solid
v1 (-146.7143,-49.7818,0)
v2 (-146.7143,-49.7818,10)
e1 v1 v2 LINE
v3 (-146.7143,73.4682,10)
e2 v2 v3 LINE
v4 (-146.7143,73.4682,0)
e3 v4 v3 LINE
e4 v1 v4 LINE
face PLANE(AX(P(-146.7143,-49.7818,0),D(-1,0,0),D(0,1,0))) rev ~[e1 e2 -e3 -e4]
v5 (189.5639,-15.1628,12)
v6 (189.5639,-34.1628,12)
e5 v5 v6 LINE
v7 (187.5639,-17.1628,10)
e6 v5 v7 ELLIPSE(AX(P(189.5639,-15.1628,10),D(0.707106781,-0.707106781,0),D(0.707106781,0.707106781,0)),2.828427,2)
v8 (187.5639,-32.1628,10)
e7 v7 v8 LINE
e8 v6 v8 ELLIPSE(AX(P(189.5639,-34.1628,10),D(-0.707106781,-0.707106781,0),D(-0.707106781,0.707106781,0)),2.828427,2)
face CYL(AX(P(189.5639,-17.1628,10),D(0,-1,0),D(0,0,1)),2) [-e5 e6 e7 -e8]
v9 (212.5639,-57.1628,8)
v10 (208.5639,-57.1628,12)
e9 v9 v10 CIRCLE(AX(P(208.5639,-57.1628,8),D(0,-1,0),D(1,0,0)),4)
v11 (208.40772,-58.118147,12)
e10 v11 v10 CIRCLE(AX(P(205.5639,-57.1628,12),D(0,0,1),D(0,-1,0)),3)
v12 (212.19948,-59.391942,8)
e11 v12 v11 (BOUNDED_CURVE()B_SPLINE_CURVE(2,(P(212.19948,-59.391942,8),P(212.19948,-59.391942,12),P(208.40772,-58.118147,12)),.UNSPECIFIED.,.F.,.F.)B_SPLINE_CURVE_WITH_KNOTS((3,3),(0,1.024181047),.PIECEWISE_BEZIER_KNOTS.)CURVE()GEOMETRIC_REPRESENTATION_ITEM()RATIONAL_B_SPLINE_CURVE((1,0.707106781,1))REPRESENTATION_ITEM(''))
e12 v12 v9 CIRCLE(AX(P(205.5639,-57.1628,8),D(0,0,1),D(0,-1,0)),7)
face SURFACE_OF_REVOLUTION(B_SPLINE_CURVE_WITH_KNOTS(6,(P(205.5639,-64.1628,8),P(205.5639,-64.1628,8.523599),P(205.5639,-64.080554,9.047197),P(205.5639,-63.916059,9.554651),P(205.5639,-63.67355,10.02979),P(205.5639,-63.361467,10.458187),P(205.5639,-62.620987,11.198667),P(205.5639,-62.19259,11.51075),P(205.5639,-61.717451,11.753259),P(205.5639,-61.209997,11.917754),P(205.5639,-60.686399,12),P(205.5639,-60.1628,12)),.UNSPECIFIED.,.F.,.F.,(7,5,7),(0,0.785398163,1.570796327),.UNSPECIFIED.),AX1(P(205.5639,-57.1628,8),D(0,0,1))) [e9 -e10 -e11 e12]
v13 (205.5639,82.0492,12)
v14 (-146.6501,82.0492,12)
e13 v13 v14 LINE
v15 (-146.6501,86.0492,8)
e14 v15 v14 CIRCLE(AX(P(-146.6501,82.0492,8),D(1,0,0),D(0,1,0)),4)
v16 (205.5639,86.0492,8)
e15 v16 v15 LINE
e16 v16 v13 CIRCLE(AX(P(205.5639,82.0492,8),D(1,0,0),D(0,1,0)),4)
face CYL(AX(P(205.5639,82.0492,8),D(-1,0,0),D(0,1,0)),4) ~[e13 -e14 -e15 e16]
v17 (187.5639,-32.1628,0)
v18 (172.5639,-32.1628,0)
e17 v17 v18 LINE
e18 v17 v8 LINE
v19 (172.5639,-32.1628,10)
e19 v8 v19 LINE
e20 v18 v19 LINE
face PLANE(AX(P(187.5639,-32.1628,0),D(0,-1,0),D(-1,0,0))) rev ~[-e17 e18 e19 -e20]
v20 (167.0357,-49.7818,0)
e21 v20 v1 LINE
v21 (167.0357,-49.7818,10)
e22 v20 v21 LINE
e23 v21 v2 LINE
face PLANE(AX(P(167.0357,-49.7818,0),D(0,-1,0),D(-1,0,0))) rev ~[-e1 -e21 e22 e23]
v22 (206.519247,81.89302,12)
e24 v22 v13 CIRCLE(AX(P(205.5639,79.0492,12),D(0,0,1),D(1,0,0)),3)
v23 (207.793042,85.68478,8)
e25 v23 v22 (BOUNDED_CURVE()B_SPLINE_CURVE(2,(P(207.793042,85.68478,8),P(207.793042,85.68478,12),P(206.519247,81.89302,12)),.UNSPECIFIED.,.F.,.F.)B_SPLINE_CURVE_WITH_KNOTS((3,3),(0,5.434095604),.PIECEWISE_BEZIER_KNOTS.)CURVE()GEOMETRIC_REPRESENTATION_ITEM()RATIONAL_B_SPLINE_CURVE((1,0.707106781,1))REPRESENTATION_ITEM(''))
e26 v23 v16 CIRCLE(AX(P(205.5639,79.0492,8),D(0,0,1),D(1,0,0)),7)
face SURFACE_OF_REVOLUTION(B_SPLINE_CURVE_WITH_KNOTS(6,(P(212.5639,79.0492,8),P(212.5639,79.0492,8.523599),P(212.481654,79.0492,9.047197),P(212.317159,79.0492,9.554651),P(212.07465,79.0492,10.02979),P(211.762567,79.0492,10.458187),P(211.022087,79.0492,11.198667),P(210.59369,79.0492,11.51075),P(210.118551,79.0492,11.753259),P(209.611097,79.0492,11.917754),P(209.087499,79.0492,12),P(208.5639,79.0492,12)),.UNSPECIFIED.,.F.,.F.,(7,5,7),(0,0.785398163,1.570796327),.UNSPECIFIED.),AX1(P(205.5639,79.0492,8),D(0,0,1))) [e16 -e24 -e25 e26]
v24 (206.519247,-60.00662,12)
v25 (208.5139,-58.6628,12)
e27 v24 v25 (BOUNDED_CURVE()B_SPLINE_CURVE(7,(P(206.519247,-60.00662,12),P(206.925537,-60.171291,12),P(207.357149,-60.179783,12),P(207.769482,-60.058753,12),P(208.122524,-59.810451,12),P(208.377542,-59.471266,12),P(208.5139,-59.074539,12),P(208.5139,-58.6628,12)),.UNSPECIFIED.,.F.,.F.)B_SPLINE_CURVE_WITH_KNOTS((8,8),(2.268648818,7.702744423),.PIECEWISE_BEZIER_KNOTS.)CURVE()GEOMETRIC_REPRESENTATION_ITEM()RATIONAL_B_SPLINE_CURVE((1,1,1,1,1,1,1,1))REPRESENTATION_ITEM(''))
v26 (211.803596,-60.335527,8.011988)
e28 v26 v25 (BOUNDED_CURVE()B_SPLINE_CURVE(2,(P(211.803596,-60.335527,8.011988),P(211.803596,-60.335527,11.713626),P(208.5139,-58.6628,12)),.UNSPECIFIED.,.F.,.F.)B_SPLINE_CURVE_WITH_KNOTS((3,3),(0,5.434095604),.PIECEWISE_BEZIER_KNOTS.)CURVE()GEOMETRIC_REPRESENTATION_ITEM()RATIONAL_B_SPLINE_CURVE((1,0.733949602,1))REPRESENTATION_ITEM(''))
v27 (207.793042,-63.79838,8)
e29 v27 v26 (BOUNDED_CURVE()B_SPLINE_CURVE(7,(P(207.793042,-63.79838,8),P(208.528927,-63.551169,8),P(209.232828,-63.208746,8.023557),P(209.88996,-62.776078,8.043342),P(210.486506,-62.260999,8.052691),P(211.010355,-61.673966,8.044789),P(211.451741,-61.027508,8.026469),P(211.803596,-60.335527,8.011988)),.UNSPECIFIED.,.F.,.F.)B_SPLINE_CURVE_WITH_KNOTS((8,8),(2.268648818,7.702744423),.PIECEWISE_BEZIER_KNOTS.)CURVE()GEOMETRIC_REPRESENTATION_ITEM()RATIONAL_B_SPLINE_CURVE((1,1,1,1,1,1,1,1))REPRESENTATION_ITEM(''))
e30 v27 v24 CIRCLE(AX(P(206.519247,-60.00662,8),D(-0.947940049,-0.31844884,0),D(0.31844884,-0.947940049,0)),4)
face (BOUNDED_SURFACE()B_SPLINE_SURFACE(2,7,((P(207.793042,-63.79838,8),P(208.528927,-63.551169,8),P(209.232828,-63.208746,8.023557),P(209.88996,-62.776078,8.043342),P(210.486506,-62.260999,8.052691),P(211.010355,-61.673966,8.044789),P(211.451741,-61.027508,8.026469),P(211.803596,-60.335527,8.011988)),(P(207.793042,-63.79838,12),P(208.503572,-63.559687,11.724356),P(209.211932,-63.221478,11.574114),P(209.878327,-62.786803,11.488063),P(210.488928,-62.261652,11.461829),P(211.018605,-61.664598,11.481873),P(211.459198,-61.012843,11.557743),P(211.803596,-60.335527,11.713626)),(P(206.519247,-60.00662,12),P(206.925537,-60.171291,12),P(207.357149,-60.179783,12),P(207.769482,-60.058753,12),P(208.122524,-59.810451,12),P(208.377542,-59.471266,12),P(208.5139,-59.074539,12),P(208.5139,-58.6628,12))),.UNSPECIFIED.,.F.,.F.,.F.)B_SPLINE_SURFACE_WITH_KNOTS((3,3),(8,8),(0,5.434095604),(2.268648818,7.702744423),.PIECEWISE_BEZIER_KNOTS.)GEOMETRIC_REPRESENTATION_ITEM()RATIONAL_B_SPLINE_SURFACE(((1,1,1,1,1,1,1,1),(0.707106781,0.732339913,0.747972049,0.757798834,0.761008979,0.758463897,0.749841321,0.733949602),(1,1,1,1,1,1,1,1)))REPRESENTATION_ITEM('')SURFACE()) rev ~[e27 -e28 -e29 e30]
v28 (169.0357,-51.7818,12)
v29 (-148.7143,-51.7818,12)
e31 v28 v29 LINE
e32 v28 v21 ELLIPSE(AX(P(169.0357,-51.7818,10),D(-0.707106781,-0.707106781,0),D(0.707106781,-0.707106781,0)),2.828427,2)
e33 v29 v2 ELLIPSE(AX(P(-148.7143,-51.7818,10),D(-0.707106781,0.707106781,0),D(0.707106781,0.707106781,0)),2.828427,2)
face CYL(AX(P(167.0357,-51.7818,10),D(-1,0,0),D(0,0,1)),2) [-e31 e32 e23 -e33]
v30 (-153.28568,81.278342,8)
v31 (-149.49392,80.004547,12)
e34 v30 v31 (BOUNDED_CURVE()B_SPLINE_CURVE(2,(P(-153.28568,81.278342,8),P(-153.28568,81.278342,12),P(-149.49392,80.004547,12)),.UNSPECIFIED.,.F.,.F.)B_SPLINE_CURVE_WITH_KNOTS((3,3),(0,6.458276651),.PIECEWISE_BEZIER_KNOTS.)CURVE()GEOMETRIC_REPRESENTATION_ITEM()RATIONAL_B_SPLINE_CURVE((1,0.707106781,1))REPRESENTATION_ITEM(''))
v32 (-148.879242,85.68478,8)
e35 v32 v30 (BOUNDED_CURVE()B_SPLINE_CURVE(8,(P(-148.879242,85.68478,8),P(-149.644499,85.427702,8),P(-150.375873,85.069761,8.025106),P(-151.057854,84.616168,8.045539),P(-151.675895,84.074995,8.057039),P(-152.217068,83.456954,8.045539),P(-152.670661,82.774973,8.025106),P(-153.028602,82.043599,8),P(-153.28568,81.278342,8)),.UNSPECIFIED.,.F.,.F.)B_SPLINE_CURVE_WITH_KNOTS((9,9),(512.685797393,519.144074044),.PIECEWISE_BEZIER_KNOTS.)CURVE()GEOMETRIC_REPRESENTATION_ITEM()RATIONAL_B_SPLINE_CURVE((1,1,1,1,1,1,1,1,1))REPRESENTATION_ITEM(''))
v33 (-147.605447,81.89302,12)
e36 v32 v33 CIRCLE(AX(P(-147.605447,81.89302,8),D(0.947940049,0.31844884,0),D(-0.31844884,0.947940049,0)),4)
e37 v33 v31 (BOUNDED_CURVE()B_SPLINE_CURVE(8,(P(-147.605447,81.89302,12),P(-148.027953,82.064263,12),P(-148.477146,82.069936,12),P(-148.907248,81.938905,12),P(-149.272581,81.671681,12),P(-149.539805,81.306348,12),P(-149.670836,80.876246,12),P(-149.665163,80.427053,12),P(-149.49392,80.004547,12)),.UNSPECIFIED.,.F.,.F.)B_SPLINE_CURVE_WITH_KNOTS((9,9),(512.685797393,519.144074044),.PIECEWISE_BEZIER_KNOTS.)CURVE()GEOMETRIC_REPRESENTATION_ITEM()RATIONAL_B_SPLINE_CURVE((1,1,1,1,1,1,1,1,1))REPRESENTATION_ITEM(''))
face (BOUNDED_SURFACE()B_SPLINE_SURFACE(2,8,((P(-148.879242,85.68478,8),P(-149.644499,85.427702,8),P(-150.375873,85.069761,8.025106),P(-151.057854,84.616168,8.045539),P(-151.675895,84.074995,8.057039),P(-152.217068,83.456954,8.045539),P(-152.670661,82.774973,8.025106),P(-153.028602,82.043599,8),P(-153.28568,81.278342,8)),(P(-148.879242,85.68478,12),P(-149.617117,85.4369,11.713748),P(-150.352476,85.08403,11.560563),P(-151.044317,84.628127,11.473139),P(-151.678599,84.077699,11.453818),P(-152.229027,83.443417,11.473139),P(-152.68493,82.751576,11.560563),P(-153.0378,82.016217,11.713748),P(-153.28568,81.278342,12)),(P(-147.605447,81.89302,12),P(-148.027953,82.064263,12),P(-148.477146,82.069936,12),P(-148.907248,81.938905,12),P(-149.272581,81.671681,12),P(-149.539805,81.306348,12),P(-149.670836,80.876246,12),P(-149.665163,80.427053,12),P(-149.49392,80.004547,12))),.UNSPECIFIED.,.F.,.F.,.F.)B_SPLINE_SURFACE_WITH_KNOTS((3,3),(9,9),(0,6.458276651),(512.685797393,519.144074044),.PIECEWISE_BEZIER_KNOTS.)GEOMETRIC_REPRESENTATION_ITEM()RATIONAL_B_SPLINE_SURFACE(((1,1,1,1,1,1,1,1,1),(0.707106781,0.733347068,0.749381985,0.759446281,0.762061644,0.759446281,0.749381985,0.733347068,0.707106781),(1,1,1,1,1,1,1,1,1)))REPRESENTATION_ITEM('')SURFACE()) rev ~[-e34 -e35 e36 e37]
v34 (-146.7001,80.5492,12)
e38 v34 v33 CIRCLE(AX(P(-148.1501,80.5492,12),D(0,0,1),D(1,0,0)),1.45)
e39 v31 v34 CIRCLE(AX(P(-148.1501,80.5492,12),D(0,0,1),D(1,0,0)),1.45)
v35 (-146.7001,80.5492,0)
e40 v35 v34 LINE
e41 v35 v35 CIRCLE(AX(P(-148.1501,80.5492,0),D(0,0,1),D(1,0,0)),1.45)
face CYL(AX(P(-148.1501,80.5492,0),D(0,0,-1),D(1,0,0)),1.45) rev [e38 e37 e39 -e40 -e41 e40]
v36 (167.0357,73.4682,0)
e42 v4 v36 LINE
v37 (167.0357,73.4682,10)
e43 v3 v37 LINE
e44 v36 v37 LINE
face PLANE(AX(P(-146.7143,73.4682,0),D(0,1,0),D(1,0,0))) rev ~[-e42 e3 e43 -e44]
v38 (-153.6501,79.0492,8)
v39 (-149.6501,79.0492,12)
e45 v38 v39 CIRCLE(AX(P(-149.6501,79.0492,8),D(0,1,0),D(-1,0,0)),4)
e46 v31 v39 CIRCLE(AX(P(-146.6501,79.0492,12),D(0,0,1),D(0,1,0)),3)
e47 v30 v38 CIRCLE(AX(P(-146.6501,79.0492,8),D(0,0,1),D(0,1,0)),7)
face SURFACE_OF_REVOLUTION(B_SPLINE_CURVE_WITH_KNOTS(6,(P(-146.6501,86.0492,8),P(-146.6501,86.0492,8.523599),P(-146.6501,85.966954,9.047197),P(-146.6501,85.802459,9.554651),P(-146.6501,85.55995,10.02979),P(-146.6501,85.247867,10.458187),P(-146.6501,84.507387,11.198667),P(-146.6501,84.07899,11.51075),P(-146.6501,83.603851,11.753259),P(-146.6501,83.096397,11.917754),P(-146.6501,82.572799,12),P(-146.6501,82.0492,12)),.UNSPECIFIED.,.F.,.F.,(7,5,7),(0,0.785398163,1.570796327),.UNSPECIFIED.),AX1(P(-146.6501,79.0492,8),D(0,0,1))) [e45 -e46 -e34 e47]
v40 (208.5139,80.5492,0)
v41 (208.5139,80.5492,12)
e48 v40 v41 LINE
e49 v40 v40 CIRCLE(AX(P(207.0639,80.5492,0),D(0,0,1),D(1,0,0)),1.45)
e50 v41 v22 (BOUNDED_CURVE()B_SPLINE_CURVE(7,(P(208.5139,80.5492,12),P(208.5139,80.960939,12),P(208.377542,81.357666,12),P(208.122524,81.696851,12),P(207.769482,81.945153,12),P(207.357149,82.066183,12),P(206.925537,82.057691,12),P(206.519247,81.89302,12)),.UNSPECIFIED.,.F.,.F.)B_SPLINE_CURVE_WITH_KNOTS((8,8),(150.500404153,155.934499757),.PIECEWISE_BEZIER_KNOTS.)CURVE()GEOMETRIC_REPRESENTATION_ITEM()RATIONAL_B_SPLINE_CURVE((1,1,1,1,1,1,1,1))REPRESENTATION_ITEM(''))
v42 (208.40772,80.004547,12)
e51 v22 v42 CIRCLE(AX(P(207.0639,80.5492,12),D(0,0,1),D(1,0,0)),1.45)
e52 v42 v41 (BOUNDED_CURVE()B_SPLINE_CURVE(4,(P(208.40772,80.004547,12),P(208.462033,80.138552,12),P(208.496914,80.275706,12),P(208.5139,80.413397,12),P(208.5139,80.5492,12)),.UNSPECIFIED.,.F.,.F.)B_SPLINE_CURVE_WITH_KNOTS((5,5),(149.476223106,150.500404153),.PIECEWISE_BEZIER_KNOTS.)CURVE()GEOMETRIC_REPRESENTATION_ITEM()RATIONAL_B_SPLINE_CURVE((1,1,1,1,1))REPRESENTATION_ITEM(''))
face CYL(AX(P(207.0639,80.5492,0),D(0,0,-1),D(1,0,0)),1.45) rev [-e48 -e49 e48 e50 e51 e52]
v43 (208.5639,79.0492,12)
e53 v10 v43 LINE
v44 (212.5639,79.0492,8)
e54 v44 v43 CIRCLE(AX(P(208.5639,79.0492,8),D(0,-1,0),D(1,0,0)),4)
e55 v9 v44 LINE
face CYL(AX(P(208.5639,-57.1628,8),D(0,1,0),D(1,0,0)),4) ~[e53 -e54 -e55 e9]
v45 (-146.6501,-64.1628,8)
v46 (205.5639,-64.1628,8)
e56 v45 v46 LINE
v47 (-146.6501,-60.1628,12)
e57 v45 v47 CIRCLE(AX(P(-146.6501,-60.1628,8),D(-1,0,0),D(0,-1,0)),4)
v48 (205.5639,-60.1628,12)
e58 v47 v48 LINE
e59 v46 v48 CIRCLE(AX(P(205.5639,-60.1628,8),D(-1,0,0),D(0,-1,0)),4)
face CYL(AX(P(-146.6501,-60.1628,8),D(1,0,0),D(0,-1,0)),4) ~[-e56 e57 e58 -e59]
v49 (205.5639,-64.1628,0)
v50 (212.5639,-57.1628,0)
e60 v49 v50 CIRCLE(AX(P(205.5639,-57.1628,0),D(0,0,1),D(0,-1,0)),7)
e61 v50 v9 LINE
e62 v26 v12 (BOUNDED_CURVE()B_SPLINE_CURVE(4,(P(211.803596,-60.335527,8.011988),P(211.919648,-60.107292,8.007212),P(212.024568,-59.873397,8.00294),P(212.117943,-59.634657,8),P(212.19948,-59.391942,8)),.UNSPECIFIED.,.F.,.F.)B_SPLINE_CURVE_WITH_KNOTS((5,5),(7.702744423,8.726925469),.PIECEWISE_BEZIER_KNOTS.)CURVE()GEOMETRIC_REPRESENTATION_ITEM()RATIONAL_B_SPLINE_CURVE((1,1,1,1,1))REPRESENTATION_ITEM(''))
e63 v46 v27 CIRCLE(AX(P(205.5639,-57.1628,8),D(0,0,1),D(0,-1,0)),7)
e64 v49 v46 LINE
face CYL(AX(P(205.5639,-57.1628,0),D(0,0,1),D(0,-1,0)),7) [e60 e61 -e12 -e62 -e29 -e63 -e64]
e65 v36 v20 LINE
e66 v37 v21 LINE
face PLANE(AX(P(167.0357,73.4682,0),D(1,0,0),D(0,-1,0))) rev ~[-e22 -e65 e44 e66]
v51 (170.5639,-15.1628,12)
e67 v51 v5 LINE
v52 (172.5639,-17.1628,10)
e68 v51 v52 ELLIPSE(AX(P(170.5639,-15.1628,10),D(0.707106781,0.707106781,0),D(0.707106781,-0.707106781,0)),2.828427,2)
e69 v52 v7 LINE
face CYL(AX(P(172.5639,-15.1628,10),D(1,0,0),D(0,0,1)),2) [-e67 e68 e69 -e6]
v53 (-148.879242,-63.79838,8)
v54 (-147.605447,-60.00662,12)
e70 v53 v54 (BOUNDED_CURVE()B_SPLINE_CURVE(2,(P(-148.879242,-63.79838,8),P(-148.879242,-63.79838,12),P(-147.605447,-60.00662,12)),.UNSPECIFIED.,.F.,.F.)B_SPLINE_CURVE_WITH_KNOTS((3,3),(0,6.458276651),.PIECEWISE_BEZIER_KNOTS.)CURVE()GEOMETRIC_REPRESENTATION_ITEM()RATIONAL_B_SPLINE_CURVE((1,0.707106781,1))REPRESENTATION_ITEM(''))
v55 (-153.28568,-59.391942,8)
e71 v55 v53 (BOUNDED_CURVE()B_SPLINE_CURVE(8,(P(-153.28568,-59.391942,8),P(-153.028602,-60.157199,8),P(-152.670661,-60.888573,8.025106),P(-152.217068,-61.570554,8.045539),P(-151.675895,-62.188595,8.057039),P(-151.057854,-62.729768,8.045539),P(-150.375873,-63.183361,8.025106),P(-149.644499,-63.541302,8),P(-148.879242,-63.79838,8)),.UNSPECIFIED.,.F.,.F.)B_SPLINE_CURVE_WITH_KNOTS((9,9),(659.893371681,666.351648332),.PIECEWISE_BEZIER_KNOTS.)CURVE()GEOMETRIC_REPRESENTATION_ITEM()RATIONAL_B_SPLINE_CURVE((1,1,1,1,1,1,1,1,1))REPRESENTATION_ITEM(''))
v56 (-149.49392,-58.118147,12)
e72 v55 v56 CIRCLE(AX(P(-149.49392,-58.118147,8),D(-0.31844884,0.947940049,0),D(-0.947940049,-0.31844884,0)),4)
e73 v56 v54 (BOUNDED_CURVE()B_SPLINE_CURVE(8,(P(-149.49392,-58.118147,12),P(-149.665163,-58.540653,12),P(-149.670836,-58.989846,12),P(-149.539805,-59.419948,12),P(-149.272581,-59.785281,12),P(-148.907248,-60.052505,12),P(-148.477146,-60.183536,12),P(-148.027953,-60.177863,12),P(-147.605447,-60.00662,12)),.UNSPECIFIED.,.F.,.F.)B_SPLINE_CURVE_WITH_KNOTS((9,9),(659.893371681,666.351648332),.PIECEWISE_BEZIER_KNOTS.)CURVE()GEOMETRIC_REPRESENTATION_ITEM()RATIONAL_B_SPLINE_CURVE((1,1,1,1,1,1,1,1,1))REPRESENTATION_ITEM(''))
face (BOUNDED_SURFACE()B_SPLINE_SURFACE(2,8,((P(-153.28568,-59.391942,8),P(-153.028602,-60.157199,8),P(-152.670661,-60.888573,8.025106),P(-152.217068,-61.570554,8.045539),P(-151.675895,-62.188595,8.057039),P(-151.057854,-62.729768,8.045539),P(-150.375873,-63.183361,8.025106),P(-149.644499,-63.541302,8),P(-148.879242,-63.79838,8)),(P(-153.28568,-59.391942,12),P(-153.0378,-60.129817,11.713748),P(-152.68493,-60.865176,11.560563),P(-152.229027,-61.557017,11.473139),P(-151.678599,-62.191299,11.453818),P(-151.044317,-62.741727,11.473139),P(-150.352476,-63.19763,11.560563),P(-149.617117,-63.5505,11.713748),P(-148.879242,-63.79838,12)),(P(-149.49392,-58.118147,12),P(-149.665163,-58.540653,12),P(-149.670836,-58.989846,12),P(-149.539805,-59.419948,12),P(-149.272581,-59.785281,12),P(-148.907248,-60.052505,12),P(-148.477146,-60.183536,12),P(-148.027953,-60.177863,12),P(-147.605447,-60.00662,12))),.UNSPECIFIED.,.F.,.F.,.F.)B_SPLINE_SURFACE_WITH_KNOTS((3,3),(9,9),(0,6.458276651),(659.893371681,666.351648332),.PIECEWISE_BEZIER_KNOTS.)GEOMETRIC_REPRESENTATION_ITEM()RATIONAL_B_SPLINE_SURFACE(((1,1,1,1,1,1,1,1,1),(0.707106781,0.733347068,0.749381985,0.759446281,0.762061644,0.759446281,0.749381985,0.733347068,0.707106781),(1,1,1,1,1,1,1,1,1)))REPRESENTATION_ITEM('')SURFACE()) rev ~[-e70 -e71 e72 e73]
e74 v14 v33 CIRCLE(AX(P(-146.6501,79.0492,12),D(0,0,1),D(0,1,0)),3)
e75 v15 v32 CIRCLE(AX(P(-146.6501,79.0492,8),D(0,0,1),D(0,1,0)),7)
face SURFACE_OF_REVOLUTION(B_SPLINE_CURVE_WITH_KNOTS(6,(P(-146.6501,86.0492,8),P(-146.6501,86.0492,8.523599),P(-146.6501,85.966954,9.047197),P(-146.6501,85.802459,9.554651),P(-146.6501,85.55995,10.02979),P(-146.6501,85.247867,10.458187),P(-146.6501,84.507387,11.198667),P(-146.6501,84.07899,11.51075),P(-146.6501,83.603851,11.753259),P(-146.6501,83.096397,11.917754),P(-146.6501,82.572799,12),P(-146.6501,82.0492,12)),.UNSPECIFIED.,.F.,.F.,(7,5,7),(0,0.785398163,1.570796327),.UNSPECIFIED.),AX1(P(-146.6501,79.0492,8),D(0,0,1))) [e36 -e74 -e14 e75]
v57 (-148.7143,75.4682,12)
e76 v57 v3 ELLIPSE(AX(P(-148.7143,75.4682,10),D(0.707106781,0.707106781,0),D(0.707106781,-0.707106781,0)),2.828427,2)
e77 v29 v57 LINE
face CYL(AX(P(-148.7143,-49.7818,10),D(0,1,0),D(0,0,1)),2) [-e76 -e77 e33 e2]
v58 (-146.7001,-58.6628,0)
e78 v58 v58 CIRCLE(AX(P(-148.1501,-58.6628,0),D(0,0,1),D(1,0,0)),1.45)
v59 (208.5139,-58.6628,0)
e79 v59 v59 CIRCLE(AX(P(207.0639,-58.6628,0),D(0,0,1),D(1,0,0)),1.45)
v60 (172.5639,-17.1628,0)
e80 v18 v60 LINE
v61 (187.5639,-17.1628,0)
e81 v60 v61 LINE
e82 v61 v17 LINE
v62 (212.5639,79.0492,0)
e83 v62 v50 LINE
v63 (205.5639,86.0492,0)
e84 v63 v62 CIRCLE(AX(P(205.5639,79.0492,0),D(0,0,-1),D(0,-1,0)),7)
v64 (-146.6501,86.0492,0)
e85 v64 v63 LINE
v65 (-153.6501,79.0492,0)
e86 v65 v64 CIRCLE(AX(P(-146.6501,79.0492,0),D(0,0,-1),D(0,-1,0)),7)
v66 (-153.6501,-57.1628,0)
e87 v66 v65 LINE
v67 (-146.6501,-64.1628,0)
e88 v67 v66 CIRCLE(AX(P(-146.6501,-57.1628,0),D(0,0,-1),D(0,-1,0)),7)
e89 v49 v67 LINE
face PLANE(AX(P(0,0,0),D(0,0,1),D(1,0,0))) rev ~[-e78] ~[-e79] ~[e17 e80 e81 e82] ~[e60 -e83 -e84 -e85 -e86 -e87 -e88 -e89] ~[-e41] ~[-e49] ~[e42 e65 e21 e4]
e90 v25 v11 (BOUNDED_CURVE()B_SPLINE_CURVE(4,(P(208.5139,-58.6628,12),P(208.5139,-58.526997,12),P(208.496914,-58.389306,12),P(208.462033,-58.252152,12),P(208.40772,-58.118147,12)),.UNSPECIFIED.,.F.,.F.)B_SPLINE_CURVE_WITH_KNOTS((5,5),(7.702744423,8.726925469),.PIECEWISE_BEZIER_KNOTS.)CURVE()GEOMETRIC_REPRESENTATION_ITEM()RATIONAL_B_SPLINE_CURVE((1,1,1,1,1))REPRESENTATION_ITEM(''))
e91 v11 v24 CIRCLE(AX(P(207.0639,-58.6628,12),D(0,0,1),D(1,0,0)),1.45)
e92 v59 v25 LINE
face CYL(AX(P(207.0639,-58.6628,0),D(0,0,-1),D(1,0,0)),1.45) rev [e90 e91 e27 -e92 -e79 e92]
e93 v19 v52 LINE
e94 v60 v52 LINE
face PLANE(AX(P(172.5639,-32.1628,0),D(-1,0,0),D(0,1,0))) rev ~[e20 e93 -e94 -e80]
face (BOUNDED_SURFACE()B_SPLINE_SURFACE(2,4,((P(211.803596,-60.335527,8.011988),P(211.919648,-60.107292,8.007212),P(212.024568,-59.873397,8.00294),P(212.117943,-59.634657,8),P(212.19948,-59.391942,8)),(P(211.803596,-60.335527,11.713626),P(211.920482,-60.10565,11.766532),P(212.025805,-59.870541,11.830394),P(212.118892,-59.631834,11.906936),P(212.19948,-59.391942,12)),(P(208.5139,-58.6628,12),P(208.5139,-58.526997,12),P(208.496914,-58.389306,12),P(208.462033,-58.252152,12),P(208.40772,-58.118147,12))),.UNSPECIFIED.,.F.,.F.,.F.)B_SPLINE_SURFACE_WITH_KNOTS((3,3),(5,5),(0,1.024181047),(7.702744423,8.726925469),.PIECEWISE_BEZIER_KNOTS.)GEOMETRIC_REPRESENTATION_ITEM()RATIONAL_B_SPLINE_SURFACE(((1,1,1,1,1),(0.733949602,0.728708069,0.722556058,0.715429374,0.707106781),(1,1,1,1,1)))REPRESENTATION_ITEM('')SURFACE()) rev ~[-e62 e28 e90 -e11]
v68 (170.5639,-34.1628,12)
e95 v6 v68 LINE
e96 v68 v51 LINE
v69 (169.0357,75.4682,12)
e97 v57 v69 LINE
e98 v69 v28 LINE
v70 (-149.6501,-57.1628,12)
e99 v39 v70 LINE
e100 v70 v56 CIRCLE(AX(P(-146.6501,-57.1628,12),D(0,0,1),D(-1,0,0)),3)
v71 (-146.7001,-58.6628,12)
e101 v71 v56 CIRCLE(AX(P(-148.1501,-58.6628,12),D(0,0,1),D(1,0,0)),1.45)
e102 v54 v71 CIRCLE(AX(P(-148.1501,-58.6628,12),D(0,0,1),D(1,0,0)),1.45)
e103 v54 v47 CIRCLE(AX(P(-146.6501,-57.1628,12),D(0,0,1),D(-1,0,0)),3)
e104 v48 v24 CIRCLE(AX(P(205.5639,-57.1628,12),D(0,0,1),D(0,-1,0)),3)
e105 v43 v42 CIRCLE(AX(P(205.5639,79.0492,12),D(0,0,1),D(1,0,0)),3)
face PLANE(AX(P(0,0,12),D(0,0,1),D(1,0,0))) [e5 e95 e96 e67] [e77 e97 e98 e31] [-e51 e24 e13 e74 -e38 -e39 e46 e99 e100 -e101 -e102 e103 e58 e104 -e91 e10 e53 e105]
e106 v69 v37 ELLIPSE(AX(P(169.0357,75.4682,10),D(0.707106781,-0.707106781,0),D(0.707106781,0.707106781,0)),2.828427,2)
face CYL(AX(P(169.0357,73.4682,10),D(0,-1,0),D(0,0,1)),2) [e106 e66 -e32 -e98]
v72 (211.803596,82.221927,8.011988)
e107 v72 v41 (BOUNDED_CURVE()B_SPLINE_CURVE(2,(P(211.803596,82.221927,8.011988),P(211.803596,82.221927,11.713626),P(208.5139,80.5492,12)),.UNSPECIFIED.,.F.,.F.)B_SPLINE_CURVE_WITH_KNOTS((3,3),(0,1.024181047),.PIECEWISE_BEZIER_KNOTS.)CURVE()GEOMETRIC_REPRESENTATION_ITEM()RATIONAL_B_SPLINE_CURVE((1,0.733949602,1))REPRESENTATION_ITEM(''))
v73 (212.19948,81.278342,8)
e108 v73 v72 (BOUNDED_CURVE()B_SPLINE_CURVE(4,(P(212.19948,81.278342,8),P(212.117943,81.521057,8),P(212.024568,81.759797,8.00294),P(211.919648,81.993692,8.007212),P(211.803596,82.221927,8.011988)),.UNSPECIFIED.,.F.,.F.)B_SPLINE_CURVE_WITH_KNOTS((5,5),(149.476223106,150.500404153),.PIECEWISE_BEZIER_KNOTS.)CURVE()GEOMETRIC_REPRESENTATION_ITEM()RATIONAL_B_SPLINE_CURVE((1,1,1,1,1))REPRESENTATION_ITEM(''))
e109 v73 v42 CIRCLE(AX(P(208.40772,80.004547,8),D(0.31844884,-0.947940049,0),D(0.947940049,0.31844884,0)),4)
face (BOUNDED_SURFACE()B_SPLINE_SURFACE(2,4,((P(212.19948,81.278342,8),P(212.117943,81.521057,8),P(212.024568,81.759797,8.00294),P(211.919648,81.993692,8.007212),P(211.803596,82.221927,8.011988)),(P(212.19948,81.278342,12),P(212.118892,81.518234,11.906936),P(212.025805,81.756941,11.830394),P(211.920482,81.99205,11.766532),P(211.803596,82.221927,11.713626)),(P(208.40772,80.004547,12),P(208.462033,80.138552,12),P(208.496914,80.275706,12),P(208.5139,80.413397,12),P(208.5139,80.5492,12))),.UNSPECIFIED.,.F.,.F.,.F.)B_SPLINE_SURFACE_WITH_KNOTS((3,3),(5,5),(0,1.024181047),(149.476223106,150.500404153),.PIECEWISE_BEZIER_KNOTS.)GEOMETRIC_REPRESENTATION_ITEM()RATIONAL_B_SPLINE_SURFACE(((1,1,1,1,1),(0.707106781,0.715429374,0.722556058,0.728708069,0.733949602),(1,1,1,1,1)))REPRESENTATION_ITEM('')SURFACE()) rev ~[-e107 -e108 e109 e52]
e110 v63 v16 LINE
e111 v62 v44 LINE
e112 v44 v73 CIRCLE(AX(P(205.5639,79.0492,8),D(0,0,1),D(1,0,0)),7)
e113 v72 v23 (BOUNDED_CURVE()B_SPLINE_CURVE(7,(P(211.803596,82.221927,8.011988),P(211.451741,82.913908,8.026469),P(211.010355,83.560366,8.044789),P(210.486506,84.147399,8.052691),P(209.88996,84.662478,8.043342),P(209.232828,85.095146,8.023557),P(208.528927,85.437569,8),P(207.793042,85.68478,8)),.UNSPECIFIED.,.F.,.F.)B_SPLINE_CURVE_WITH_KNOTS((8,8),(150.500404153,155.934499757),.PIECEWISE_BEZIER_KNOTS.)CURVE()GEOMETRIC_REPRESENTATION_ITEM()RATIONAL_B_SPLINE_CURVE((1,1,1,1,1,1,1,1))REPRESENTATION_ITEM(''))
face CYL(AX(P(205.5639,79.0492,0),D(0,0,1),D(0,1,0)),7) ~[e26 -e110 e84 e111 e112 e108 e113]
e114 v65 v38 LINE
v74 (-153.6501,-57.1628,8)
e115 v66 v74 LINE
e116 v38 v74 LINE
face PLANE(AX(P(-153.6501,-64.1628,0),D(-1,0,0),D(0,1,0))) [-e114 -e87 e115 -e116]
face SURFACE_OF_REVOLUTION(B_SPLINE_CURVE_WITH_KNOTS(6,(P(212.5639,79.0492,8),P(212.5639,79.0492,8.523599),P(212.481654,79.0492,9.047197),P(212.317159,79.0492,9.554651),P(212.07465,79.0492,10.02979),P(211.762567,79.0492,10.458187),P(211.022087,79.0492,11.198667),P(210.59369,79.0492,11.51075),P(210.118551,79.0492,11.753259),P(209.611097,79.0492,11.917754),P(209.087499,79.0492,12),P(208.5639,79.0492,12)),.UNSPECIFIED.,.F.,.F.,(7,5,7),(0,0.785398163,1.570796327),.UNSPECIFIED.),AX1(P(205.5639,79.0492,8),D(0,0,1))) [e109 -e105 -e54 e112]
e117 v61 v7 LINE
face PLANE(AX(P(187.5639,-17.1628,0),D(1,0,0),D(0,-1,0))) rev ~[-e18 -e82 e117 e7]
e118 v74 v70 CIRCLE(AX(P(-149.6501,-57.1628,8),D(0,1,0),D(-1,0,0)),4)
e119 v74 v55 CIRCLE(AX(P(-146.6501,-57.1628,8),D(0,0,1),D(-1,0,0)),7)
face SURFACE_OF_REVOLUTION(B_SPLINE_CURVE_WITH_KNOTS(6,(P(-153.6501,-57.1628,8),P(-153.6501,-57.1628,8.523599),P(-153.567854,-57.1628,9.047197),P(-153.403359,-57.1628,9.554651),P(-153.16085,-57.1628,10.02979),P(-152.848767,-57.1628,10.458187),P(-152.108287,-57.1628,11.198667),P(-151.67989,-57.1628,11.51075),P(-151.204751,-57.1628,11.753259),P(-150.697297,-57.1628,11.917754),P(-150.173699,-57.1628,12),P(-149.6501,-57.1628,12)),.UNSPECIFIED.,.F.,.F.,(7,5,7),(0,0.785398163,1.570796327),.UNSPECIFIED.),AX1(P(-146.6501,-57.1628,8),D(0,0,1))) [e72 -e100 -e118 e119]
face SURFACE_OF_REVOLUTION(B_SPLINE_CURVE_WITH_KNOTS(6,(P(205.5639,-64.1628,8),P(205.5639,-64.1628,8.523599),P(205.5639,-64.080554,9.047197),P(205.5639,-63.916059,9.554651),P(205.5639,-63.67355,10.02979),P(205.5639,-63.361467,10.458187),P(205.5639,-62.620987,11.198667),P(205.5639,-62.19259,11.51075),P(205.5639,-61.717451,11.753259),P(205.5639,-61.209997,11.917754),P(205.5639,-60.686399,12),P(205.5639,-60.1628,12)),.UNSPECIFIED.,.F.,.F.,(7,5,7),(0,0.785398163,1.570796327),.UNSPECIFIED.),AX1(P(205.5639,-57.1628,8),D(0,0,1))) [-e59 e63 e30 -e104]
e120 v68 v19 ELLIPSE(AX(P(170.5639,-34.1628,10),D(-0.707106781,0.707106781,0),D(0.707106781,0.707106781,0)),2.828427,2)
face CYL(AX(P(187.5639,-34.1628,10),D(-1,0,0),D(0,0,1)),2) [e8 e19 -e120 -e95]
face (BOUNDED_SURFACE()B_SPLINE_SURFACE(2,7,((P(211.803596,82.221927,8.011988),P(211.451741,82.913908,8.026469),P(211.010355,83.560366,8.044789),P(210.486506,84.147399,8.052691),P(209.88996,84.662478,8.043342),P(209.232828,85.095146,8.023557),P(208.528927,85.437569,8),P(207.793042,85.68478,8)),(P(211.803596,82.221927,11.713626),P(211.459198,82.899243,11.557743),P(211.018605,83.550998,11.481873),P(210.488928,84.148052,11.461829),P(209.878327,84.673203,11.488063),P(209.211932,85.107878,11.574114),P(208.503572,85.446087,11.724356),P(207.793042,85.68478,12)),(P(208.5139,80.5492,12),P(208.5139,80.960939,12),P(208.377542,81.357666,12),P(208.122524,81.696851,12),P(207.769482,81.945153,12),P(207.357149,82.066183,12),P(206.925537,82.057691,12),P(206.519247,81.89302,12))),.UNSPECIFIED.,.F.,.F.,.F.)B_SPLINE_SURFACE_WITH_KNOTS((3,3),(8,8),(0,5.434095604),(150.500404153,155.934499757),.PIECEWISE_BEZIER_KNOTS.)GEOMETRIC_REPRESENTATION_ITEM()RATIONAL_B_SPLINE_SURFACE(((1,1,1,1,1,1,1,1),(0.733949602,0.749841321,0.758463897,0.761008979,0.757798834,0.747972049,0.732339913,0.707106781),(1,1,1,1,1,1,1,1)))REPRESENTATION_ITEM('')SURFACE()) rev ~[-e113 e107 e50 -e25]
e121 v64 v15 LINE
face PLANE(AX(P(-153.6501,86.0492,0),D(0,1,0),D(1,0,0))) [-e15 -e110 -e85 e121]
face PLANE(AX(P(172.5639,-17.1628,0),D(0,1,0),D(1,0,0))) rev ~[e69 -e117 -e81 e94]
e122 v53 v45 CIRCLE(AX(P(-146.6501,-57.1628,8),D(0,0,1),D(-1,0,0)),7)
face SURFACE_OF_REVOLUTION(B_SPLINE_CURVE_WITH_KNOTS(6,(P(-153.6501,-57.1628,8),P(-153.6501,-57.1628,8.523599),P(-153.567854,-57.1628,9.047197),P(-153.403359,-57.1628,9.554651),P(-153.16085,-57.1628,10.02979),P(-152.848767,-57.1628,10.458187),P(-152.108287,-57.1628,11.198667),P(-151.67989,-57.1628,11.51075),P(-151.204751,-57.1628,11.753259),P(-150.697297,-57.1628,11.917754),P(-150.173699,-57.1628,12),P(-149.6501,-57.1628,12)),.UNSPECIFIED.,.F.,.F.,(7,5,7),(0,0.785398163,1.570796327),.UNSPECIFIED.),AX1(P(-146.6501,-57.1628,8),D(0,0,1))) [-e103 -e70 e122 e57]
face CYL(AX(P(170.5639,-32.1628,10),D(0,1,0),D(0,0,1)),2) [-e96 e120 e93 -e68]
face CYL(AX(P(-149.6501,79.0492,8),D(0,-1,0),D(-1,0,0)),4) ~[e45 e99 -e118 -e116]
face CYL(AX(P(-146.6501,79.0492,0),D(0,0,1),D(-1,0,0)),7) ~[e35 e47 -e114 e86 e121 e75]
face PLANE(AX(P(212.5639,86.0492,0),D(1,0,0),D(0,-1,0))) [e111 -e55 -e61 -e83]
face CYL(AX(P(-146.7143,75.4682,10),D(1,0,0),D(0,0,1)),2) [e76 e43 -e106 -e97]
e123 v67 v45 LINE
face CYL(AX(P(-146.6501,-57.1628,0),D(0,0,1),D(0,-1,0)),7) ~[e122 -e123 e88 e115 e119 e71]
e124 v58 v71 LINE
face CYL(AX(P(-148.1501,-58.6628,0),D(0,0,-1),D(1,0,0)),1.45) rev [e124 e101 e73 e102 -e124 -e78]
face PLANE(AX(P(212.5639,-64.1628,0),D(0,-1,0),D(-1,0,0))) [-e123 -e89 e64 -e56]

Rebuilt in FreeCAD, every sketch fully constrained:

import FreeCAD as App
import Part
import Sketcher
from FreeCAD import Vector


def edges_at(feature, points):
    """Names of the edges that pass closest to the given points."""
    edges = feature.Shape.Edges
    near = lambda p: min(range(len(edges)), key=lambda i: edges[i].distToShape(Part.Vertex(*p))[0])
    return sorted({f"Edge{near(p) + 1}" for p in points})

doc = App.newDocument("Part")
params = doc.addObject("Spreadsheet::Sheet", "Params")
for row, (alias, value) in enumerate([
    ("sketch1_diameter", "2.9 mm"),
    ("sketch1_width", "15 mm"),
    ("sketch1_width2", "313.75 mm"),
    ("sketch1_height", "123.25 mm"),
    ("pad1_length", "12 mm"),
    ("fillet_radius", "7 mm"),
    ("fillet2_radius", "4 mm"),
    ("fillet3_radius", "2 mm"),
    ("fillet4_radius", "2 mm"),
], start=1):
    params.set(f"A{row}", alias)
    params.set(f"B{row}", "=" + value)
    params.setAlias(f"B{row}", alias)

body = doc.addObject("PartDesign::Body", "Body")

# Sketch on XY plane
sketch1 = doc.addObject("Sketcher::SketchObject", "Sketch")
body.addObject(sketch1)
sketch1.AttachmentSupport = (doc.XY_Plane, [""])
sketch1.MapMode = "FlatFace"
sketch1.addGeometry([
    Part.LineSegment(Vector(-153.6501, -64.1628, 0), Vector(212.5639, -64.1628, 0)),  # 0
    Part.LineSegment(Vector(212.5639, -64.1628, 0), Vector(212.5639, 86.0492, 0)),  # 1
    Part.LineSegment(Vector(212.5639, 86.0492, 0), Vector(-153.6501, 86.0492, 0)),  # 2
    Part.LineSegment(Vector(-153.6501, 86.0492, 0), Vector(-153.6501, -64.1628, 0)),  # 3
    Part.Circle(Vector(-148.1501, -58.6628, 0), Vector(0, 0, 1), 1.45),  # 4
    Part.Circle(Vector(207.0639, -58.6628, 0), Vector(0, 0, 1), 1.45),  # 5
    Part.LineSegment(Vector(172.5639, -17.1628, 0), Vector(187.5639, -17.1628, 0)),  # 6
    Part.LineSegment(Vector(187.5639, -17.1628, 0), Vector(187.5639, -32.1628, 0)),  # 7
    Part.LineSegment(Vector(187.5639, -32.1628, 0), Vector(172.5639, -32.1628, 0)),  # 8
    Part.LineSegment(Vector(172.5639, -32.1628, 0), Vector(172.5639, -17.1628, 0)),  # 9
    Part.LineSegment(Vector(-146.7143, -49.7818, 0), Vector(-146.7143, 73.4682, 0)),  # 10
    Part.LineSegment(Vector(-146.7143, 73.4682, 0), Vector(167.0357, 73.4682, 0)),  # 11
    Part.LineSegment(Vector(167.0357, 73.4682, 0), Vector(167.0357, -49.7818, 0)),  # 12
    Part.LineSegment(Vector(167.0357, -49.7818, 0), Vector(-146.7143, -49.7818, 0)),  # 13
    Part.Circle(Vector(-148.1501, 80.5492, 0), Vector(0, 0, 1), 1.45),  # 14
    Part.Circle(Vector(207.0639, 80.5492, 0), Vector(0, 0, 1), 1.45),  # 15
], False)
sketch1.addConstraint([
    Sketcher.Constraint("Coincident", 0, 2, 1, 1),
    Sketcher.Constraint("Coincident", 1, 2, 2, 1),
    Sketcher.Constraint("Coincident", 2, 2, 3, 1),
    Sketcher.Constraint("Coincident", 3, 2, 0, 1),
    Sketcher.Constraint("Coincident", 6, 2, 7, 1),
    Sketcher.Constraint("Coincident", 7, 2, 8, 1),
    Sketcher.Constraint("Coincident", 8, 2, 9, 1),
    Sketcher.Constraint("Coincident", 9, 2, 6, 1),
    Sketcher.Constraint("Coincident", 10, 2, 11, 1),
    Sketcher.Constraint("Coincident", 11, 2, 12, 1),
    Sketcher.Constraint("Coincident", 12, 2, 13, 1),
    Sketcher.Constraint("Coincident", 13, 2, 10, 1),
    Sketcher.Constraint("Horizontal", 0),
    Sketcher.Constraint("Vertical", 1),
    Sketcher.Constraint("Horizontal", 2),
    Sketcher.Constraint("Vertical", 3),
    Sketcher.Constraint("Horizontal", 6),
    Sketcher.Constraint("Vertical", 7),
    Sketcher.Constraint("Horizontal", 8),
    Sketcher.Constraint("Vertical", 9),
    Sketcher.Constraint("Vertical", 10),
    Sketcher.Constraint("Horizontal", 11),
    Sketcher.Constraint("Vertical", 12),
    Sketcher.Constraint("Horizontal", 13),
    Sketcher.Constraint("Equal", 4, 5),
    Sketcher.Constraint("Equal", 5, 14),
    Sketcher.Constraint("Equal", 14, 15),
    Sketcher.Constraint("Horizontal", 4, 3, 5, 3),
    Sketcher.Constraint("Horizontal", 14, 3, 15, 3),
    Sketcher.Constraint("Vertical", 4, 3, 14, 3),
    Sketcher.Constraint("Vertical", 5, 3, 15, 3),
    Sketcher.Constraint("Equal", 8, 7),
    Sketcher.Constraint("Diameter", 4, 2.9),
    Sketcher.Constraint("DistanceX", 6, 1, 6, 2, 15.0),
    Sketcher.Constraint("DistanceX", 6, 2, 0, 2, 25.0),
    Sketcher.Constraint("DistanceY", 0, 2, 7, 2, 32.0),
    Sketcher.Constraint("DistanceX", 5, 3, 0, 2, 5.5),
    Sketcher.Constraint("DistanceY", 0, 2, 5, 3, 5.5),
    Sketcher.Constraint("DistanceY", 15, 3, 1, 2, 5.5),
    Sketcher.Constraint("DistanceX", 2, 2, 14, 3, 5.5),
    Sketcher.Constraint("DistanceX", 0, 1, 0, 2, 366.214),
    Sketcher.Constraint("DistanceY", 1, 1, 1, 2, 150.212),
    Sketcher.Constraint("DistanceX", 11, 1, 11, 2, 313.75),
    Sketcher.Constraint("DistanceY", 10, 1, 10, 2, 123.25),
    Sketcher.Constraint("DistanceX", 4, 3, -1, 1, 148.15),
    Sketcher.Constraint("DistanceY", 10, 2, 14, 3, 7.081),
    Sketcher.Constraint("DistanceY", 4, 3, -1, 1, 58.6628),
    Sketcher.Constraint("DistanceX", 10, 2, -1, 1, 146.7143),
])
sketch1.setExpression("Constraints[32]", "Params.sketch1_diameter")
sketch1.setExpression("Constraints[33]", "Params.sketch1_width")
sketch1.setExpression("Constraints[42]", "Params.sketch1_width2")
sketch1.setExpression("Constraints[43]", "Params.sketch1_height")
pad1 = doc.addObject("PartDesign::Pad", "Pad")
body.addObject(pad1)
pad1.Profile = sketch1
pad1.setExpression("Length", "Params.pad1_length")
doc.recompute()

fillet = doc.addObject("PartDesign::Fillet", "Fillet")
body.addObject(fillet)
fillet.Base = (pad1, edges_at(pad1, [
    (212.564, -64.163, 6),
    (212.564, 86.049, 6),
    (-153.65, 86.049, 6),
    (-153.65, -64.163, 6),
]))
fillet.setExpression("Radius", "Params.fillet_radius")
doc.recompute()

fillet2 = doc.addObject("PartDesign::Fillet", "Fillet001")
body.addObject(fillet2)
fillet2.Base = (fillet, edges_at(fillet, [
    (210.514, -62.113, 12),
    (212.564, 10.943, 12),
    (210.514, 83.999, 12),
    (29.457, 86.049, 12),
    (-151.6, 83.999, 12),
    (-153.65, 10.943, 12),
    (-151.6, -62.113, 12),
    (29.457, -64.163, 12),
]))
fillet2.setExpression("Radius", "Params.fillet2_radius")
doc.recompute()

fillet3 = doc.addObject("PartDesign::Fillet", "Fillet002")
body.addObject(fillet3)
fillet3.Base = (fillet2, edges_at(fillet2, [
    (10.161, 73.468, 12),
    (-146.714, 11.843, 12),
    (167.036, 11.843, 12),
    (10.161, -49.782, 12),
]))
fillet3.setExpression("Radius", "Params.fillet3_radius")
doc.recompute()

fillet4 = doc.addObject("PartDesign::Fillet", "Fillet003")
body.addObject(fillet4)
fillet4.Base = (fillet3, edges_at(fillet3, [
    (180.064, -17.163, 12),
    (172.564, -24.663, 12),
    (180.064, -32.163, 12),
    (187.564, -24.663, 12),
]))
fillet4.setExpression("Radius", "Params.fillet4_radius")

doc.recompute()
